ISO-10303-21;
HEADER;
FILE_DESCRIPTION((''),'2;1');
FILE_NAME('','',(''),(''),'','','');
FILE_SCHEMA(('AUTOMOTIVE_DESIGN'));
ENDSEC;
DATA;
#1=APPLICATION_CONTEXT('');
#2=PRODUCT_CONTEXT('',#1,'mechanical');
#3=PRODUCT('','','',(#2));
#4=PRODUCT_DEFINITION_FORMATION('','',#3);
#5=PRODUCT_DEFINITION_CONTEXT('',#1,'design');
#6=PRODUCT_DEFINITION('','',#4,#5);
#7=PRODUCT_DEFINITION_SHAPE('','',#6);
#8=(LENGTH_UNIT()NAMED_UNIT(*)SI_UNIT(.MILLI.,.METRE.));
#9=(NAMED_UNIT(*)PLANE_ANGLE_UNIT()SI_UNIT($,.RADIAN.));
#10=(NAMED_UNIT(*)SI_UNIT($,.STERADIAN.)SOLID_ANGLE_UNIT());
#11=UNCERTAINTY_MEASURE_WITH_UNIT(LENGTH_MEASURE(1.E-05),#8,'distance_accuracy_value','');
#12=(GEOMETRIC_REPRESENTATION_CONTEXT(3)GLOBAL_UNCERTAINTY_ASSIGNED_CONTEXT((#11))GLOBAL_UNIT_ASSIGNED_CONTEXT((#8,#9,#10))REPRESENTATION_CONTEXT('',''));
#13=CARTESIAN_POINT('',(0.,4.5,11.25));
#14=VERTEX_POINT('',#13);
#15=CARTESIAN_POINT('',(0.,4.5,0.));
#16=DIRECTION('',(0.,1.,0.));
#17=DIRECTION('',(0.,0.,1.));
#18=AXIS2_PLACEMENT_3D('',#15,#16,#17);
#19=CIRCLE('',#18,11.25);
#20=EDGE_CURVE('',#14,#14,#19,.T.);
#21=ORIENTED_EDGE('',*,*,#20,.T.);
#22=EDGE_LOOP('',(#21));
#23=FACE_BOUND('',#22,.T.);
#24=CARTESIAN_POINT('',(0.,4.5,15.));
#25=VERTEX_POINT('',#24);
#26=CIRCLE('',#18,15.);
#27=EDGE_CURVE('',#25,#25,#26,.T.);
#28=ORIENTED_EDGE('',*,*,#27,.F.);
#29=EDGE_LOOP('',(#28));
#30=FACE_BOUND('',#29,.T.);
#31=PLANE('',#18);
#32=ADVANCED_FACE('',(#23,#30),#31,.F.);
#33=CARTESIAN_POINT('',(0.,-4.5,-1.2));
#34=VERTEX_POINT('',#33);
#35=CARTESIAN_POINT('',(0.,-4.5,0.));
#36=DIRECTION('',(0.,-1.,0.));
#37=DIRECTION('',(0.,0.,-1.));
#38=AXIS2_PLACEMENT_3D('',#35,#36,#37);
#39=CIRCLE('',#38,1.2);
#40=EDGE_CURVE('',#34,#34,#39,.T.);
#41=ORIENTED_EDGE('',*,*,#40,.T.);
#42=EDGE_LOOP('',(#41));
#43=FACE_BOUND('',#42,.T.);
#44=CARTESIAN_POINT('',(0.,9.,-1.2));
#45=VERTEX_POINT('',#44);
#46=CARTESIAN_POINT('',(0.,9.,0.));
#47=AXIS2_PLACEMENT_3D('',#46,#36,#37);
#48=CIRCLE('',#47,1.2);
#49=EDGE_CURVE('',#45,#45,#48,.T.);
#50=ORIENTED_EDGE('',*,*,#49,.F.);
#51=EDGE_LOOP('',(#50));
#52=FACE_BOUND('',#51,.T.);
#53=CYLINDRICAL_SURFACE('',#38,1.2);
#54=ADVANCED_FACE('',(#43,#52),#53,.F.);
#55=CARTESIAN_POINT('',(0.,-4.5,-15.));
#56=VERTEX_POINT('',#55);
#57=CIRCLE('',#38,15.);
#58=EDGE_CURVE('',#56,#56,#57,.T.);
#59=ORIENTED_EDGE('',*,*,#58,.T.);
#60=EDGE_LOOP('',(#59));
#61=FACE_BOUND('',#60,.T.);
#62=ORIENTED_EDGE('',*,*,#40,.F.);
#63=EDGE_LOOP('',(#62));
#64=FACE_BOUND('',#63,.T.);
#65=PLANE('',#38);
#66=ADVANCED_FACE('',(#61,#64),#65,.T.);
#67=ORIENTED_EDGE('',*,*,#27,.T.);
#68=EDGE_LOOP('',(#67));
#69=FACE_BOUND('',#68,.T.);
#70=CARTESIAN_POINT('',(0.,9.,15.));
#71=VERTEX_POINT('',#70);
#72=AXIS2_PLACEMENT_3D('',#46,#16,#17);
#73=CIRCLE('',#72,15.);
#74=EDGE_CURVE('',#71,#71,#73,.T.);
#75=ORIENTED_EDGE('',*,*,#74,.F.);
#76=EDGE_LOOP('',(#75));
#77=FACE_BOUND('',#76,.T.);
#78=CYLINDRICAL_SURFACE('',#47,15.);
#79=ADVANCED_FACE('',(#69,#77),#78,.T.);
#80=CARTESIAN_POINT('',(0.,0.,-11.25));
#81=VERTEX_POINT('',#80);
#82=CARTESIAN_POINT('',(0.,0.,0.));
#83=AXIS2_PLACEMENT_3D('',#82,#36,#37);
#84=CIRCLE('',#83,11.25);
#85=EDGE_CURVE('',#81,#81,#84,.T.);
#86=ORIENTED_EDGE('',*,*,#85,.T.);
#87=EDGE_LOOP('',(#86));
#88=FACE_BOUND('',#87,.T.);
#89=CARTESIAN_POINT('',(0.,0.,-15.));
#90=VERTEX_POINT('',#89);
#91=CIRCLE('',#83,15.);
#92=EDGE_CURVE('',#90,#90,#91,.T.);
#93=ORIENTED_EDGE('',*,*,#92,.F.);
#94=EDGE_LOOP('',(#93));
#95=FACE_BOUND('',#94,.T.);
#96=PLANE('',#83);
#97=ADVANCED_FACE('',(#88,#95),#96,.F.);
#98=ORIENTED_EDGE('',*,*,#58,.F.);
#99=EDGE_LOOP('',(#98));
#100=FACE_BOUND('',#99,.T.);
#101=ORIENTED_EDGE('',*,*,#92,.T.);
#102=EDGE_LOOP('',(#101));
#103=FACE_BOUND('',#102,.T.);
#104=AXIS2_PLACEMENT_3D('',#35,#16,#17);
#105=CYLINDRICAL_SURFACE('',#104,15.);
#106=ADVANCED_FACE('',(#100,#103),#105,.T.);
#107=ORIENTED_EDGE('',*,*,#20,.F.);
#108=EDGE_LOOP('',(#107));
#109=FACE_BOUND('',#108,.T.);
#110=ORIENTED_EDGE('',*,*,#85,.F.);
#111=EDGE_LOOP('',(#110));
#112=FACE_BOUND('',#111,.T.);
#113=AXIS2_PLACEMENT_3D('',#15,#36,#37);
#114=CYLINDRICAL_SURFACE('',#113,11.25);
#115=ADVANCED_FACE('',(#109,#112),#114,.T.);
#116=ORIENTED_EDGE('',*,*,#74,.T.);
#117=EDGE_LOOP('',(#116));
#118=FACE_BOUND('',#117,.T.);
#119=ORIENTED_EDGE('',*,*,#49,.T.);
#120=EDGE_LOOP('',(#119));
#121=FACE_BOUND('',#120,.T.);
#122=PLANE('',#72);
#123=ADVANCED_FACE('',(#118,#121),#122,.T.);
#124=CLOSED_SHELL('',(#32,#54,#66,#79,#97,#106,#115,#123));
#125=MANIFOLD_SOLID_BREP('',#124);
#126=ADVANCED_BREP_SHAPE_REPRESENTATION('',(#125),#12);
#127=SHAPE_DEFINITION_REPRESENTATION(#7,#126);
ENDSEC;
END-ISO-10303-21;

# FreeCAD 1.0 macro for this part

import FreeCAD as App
import Part
import Sketcher
from FreeCAD import Vector
Q = App.Units.Quantity

doc = App.newDocument("Part")
params = doc.addObject("Spreadsheet::Sheet", "Params")
for row, (alias, value) in enumerate([
    ("sketch1_diameter", "22.5 mm"),
    ("pad1_length", "4.5 mm"),
    ("sketch2_diameter", "30 mm"),
    ("pad2_length", "4.5 mm"),
    ("sketch3_diameter", "30 mm"),
    ("pad3_length", "4.5 mm"),
    ("sketch4_diameter", "2.4 mm"),
    ("hole_diameter", "2.4 mm"),
], start=1):
    params.set(f"A{row}", alias)
    params.set(f"B{row}", "=" + value)
    params.setAlias(f"B{row}", alias)

body = doc.addObject("PartDesign::Body", "Body")

# Sketch on XZ plane
sketch1 = body.newObject("Sketcher::SketchObject", "Sketch")
sketch1.AttachmentSupport = (doc.getObject("XZ_Plane"), [""])
sketch1.MapMode = "FlatFace"
sketch1.addGeometry(Part.Circle(Vector(0, 0, 0), Vector(0, 0, 1), 11), False)
sketch1.addConstraint([
    Sketcher.Constraint("Coincident", 0, 3, -1, 1),
    Sketcher.Constraint("Diameter", 0, Q("22.5 mm")),
])
sketch1.setExpression("Constraints[1]", "Params.sketch1_diameter")
pad1 = body.newObject("PartDesign::Pad", "Pad")
pad1.Profile = sketch1
pad1.setExpression("Length", "Params.pad1_length")
pad1.Reversed = True

# Sketch on XZ plane
sketch2 = body.newObject("Sketcher::SketchObject", "Sketch001")
sketch2.AttachmentSupport = (doc.getObject("XZ_Plane"), [""])
sketch2.MapMode = "FlatFace"
sketch2.AttachmentOffset = App.Placement(Vector(0, 0, -4.5), App.Rotation())
sketch2.addGeometry(Part.Circle(Vector(0, 0, 0), Vector(0, 0, 1), 15), False)
sketch2.addConstraint([
    Sketcher.Constraint("Coincident", 0, 3, -1, 1),
    Sketcher.Constraint("Diameter", 0, Q("30 mm")),
])
sketch2.setExpression("Constraints[1]", "Params.sketch2_diameter")
pad2 = body.newObject("PartDesign::Pad", "Pad001")
pad2.Profile = sketch2
pad2.setExpression("Length", "Params.pad2_length")
pad2.Reversed = True

# Sketch on XZ plane
sketch3 = body.newObject("Sketcher::SketchObject", "Sketch002")
sketch3.AttachmentSupport = (doc.getObject("XZ_Plane"), [""])
sketch3.MapMode = "FlatFace"
sketch3.addGeometry(Part.Circle(Vector(0, 0, 0), Vector(0, 0, 1), 15), False)
sketch3.addConstraint([
    Sketcher.Constraint("Coincident", 0, 3, -1, 1),
    Sketcher.Constraint("Diameter", 0, Q("30 mm")),
])
sketch3.setExpression("Constraints[1]", "Params.sketch3_diameter")
pad3 = body.newObject("PartDesign::Pad", "Pad002")
pad3.Profile = sketch3
pad3.setExpression("Length", "Params.pad3_length")

# Sketch on XZ plane
sketch4 = body.newObject("Sketcher::SketchObject", "Sketch003")
sketch4.AttachmentSupport = (doc.getObject("XZ_Plane"), [""])
sketch4.MapMode = "FlatFace"
sketch4.AttachmentOffset = App.Placement(Vector(0, 0, 4.5), App.Rotation())
sketch4.addGeometry(Part.Circle(Vector(0, 0, 0), Vector(0, 0, 1), 1.2), False)
sketch4.addConstraint([
    Sketcher.Constraint("Coincident", 0, 3, -1, 1),
    Sketcher.Constraint("Diameter", 0, Q("2.4 mm")),
])
sketch4.setExpression("Constraints[1]", "Params.sketch4_diameter")
doc.recompute()
hole = body.newObject("PartDesign::Hole", "Hole")
hole.Profile = sketch4
hole.ThreadType = "None"
hole.setExpression("Diameter", "Params.hole_diameter")
hole.DepthType = "ThroughAll"

doc.recompute()
